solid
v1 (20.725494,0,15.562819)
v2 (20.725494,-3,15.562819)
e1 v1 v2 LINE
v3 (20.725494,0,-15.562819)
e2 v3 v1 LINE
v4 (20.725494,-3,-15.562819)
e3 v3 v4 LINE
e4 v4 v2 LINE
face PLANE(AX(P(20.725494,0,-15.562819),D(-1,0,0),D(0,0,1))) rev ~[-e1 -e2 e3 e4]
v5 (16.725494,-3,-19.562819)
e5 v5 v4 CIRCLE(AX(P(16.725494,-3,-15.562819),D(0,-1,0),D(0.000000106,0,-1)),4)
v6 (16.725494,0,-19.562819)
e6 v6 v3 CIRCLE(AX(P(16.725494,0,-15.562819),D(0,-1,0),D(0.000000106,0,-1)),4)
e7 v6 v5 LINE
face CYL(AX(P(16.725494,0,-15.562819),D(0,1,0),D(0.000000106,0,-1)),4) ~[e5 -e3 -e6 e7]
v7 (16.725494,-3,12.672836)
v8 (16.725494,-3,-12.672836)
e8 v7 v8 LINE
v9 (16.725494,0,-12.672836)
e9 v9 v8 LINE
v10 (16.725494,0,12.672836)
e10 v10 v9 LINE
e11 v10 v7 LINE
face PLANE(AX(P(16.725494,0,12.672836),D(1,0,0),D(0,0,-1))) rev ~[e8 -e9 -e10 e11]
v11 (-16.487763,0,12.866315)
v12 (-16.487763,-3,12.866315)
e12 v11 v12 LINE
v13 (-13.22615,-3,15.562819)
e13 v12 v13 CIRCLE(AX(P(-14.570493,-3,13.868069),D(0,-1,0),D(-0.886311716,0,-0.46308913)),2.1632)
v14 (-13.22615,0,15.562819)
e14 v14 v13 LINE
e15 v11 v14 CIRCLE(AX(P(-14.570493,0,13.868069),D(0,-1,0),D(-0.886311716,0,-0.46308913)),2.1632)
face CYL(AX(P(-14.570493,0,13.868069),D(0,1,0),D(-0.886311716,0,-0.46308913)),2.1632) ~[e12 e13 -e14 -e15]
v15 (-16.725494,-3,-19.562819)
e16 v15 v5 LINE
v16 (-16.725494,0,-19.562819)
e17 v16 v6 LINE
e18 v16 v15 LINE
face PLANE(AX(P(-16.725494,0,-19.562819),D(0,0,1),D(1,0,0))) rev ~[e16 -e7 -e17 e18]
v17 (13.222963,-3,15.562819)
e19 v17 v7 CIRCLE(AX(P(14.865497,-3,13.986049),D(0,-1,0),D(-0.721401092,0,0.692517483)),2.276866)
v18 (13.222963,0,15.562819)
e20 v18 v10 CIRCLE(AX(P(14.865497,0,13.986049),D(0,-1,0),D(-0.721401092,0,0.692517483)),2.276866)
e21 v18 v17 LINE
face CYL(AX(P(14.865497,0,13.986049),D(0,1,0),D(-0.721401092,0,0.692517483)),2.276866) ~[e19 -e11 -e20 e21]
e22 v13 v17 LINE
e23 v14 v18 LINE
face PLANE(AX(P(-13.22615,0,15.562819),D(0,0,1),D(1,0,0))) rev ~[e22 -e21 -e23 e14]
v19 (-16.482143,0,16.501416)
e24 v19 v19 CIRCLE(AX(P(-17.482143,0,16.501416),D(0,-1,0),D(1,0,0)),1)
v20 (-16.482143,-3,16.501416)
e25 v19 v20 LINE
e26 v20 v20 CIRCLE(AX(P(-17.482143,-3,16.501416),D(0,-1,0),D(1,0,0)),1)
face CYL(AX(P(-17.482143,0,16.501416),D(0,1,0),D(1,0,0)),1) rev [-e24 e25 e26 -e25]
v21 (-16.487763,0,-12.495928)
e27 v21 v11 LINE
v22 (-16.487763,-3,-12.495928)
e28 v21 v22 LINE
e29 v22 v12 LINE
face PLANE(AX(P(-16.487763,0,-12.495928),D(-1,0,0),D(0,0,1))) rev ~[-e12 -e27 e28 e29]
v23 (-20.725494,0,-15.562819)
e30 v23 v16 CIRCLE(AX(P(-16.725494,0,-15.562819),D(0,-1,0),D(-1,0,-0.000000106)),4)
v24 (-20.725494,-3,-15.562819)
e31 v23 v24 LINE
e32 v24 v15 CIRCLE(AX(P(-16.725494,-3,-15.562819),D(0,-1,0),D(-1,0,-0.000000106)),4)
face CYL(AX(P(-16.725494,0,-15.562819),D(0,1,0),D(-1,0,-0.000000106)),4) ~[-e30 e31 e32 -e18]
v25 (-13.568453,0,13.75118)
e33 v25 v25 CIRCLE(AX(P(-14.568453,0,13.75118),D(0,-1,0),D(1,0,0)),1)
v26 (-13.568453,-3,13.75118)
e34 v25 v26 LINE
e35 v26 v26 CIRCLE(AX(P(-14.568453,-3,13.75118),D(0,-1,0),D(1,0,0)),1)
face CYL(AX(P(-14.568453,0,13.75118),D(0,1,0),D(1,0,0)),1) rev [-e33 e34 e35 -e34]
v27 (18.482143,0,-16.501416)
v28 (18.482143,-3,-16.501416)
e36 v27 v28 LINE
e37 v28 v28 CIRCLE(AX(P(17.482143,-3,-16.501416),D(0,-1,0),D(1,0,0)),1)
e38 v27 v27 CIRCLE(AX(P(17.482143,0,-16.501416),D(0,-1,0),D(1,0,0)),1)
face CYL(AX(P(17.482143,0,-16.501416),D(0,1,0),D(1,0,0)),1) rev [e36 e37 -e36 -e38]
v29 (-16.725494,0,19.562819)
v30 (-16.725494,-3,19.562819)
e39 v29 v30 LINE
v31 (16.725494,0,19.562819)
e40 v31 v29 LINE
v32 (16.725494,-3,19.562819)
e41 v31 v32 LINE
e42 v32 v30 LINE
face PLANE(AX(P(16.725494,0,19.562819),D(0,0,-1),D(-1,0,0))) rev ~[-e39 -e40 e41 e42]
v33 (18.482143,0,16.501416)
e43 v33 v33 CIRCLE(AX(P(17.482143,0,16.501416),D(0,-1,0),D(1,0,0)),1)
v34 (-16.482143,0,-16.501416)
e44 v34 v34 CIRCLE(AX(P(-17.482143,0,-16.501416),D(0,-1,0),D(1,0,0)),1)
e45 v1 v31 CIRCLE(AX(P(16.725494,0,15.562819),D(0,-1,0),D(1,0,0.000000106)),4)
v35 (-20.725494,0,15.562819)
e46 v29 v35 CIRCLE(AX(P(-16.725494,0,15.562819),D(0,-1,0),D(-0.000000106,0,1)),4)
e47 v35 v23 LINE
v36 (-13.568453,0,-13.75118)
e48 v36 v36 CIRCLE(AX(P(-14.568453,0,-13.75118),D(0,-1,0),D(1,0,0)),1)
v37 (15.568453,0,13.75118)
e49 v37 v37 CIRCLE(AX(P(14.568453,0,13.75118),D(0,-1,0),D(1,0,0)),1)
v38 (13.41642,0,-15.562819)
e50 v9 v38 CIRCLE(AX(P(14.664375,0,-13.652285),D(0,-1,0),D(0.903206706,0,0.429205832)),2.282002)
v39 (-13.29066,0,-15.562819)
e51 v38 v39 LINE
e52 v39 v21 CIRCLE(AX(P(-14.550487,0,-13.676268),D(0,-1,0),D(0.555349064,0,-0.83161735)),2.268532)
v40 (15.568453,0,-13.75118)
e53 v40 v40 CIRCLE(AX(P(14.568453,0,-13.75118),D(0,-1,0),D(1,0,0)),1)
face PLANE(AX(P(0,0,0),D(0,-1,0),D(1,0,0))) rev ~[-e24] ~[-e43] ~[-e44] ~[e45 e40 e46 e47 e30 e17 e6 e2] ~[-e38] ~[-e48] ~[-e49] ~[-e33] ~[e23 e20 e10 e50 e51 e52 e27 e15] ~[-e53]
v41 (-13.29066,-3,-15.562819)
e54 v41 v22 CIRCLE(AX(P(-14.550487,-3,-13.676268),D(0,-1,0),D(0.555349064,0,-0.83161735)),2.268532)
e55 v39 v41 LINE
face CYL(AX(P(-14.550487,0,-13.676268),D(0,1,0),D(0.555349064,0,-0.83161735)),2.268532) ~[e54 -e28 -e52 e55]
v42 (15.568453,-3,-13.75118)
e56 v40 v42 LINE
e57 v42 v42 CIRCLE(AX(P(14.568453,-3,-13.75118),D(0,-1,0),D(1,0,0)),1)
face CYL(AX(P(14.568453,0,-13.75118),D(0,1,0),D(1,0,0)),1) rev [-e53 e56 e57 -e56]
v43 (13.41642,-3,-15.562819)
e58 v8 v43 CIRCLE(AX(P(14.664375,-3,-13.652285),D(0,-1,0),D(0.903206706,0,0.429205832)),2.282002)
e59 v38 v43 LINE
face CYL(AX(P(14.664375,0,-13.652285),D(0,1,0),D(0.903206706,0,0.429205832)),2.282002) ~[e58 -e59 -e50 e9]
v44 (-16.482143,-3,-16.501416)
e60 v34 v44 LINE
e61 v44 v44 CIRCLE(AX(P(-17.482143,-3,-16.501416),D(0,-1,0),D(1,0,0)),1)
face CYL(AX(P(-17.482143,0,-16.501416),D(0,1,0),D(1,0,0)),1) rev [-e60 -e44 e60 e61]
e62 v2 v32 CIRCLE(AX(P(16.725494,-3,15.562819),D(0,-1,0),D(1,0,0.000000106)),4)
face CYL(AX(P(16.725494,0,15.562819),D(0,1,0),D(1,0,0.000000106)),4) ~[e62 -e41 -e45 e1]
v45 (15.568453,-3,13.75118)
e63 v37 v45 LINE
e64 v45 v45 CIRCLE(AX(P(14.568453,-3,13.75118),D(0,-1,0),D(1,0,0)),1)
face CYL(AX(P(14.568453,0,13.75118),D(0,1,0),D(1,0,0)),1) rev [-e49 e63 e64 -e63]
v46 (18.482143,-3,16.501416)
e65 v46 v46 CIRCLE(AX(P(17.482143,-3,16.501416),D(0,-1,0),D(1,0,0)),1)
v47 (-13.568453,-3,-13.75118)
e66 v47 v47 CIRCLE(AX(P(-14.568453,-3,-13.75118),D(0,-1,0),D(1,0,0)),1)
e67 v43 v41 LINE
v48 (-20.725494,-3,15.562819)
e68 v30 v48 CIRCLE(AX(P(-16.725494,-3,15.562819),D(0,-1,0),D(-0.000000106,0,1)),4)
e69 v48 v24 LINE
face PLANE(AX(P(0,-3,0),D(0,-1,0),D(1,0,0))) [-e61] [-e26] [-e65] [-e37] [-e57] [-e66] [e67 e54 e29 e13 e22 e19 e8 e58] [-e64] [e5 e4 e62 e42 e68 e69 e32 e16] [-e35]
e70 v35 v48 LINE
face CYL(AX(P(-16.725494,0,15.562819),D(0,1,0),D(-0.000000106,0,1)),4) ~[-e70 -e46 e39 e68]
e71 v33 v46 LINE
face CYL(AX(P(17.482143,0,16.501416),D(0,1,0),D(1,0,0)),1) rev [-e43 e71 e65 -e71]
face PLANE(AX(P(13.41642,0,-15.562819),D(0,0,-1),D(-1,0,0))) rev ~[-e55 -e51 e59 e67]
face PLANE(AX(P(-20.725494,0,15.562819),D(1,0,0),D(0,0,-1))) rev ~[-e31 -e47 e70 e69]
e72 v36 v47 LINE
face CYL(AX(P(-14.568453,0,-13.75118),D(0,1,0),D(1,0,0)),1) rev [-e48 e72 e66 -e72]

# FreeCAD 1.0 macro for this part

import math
import FreeCAD as App
import Part
import Sketcher

V = App.Vector
Q = App.Units.Quantity

doc = App.newDocument("Part")
body = doc.addObject("PartDesign::Body", "Body")

sketch1 = body.newObject("Sketcher::SketchObject", "Sketch")
sketch1.AttachmentSupport = (doc.getObject("XZ_Plane"), [""])
sketch1.MapMode = "FlatFace"
sketch1.addGeometry(Part.LineSegment(V(16.725494, 19.562819, 0), V(-16.725494, 19.562819, 0)), False)
sketch1.addGeometry(Part.ArcOfCircle(Part.Circle(V(-16.725494, 15.562819, 0), V(0, 0, 1), 4), math.radians(90.000006), math.radians(179.999994)), False)
sketch1.addGeometry(Part.LineSegment(V(-20.725494, 15.562819, 0), V(-20.725494, -15.562819, 0)), False)
sketch1.addGeometry(Part.ArcOfCircle(Part.Circle(V(-16.725494, -15.562819, 0), V(0, 0, 1), 4), math.radians(-179.999994), math.radians(-90.000006)), False)
sketch1.addGeometry(Part.LineSegment(V(-16.725494, -19.562819, 0), V(16.725494, -19.562819, 0)), False)
sketch1.addGeometry(Part.ArcOfCircle(Part.Circle(V(16.725494, -15.562819, 0), V(0, 0, 1), 4), math.radians(-89.999994), math.radians(-0.000006)), False)
sketch1.addGeometry(Part.LineSegment(V(20.725494, -15.562819, 0), V(20.725494, 15.562819, 0)), False)
sketch1.addGeometry(Part.ArcOfCircle(Part.Circle(V(16.725494, 15.562819, 0), V(0, 0, 1), 4), math.radians(0.000006), math.radians(89.999994)), False)
sketch1.addGeometry(Part.Circle(V(-17.482143, -16.501416, 0), V(0, 0, 1), 1), False)
sketch1.addGeometry(Part.Circle(V(-14.568453, -13.75118, 0), V(0, 0, 1), 1), False)
sketch1.addGeometry(Part.Circle(V(17.482143, -16.501416, 0), V(0, 0, 1), 1), False)
sketch1.addGeometry(Part.Circle(V(14.568453, -13.75118, 0), V(0, 0, 1), 1), False)
sketch1.addGeometry(Part.Circle(V(-14.568453, 13.75118, 0), V(0, 0, 1), 1), False)
sketch1.addGeometry(Part.Circle(V(-17.482143, 16.501416, 0), V(0, 0, 1), 1), False)
sketch1.addGeometry(Part.LineSegment(V(-16.487763, -12.495928, 0), V(-16.487763, 12.866315, 0)), False)
sketch1.addGeometry(Part.ArcOfCircle(Part.Circle(V(-14.570493, 13.868069, 0), V(0, 0, 1), 2.1632), math.radians(-152.413376), math.radians(51.577137)), False)
sketch1.addGeometry(Part.LineSegment(V(-13.22615, 15.562819, 0), V(13.222963, 15.562819, 0)), False)
sketch1.addGeometry(Part.ArcOfCircle(Part.Circle(V(14.865497, 13.986049, 0), V(0, 0, 1), 2.276866), math.radians(136.170279), math.radians(324.776771)), False)
sketch1.addGeometry(Part.LineSegment(V(16.725494, 12.672836, 0), V(16.725494, -12.672836, 0)), False)
sketch1.addGeometry(Part.ArcOfCircle(Part.Circle(V(14.664375, -13.652285, 0), V(0, 0, 1), 2.282002), math.radians(25.417171), math.radians(236.847568)), False)
sketch1.addGeometry(Part.LineSegment(V(13.41642, -15.562819, 0), V(-13.29066, -15.562819, 0)), False)
sketch1.addGeometry(Part.ArcOfCircle(Part.Circle(V(-14.550487, -13.676268, 0), V(0, 0, 1), 2.268532), math.radians(-56.265239), math.radians(148.646954)), False)
sketch1.addGeometry(Part.Circle(V(14.568453, 13.75118, 0), V(0, 0, 1), 1), False)
sketch1.addGeometry(Part.Circle(V(17.482143, 16.501416, 0), V(0, 0, 1), 1), False)
sketch1.addConstraint(Sketcher.Constraint("Tangent", 0, 2, 1, 1))
sketch1.addConstraint(Sketcher.Constraint("Tangent", 1, 2, 2, 1))
sketch1.addConstraint(Sketcher.Constraint("Tangent", 2, 2, 3, 1))
sketch1.addConstraint(Sketcher.Constraint("Tangent", 3, 2, 4, 1))
sketch1.addConstraint(Sketcher.Constraint("Tangent", 4, 2, 5, 1))
sketch1.addConstraint(Sketcher.Constraint("Tangent", 5, 2, 6, 1))
sketch1.addConstraint(Sketcher.Constraint("Tangent", 6, 2, 7, 1))
sketch1.addConstraint(Sketcher.Constraint("Tangent", 7, 2, 0, 1))
sketch1.addConstraint(Sketcher.Constraint("Coincident", 14, 2, 15, 1))
sketch1.addConstraint(Sketcher.Constraint("Coincident", 15, 2, 16, 1))
sketch1.addConstraint(Sketcher.Constraint("Coincident", 16, 2, 17, 1))
sketch1.addConstraint(Sketcher.Constraint("Coincident", 17, 2, 18, 1))
sketch1.addConstraint(Sketcher.Constraint("Coincident", 18, 2, 19, 1))
sketch1.addConstraint(Sketcher.Constraint("Coincident", 19, 2, 20, 1))
sketch1.addConstraint(Sketcher.Constraint("Coincident", 20, 2, 21, 1))
sketch1.addConstraint(Sketcher.Constraint("Coincident", 21, 2, 14, 1))
sketch1.addConstraint(Sketcher.Constraint("Horizontal", 0))
sketch1.addConstraint(Sketcher.Constraint("Vertical", 2))
sketch1.addConstraint(Sketcher.Constraint("Horizontal", 4))
sketch1.addConstraint(Sketcher.Constraint("Vertical", 6))
sketch1.addConstraint(Sketcher.Constraint("Vertical", 14))
sketch1.addConstraint(Sketcher.Constraint("Horizontal", 16))
sketch1.addConstraint(Sketcher.Constraint("Vertical", 18))
sketch1.addConstraint(Sketcher.Constraint("Horizontal", 20))
sketch1.addConstraint(Sketcher.Constraint("Equal", 1, 3))
sketch1.addConstraint(Sketcher.Constraint("Equal", 3, 5))
sketch1.addConstraint(Sketcher.Constraint("Equal", 5, 7))
sketch1.addConstraint(Sketcher.Constraint("Equal", 8, 9))
sketch1.addConstraint(Sketcher.Constraint("Equal", 9, 10))
sketch1.addConstraint(Sketcher.Constraint("Equal", 10, 11))
sketch1.addConstraint(Sketcher.Constraint("Equal", 11, 12))
sketch1.addConstraint(Sketcher.Constraint("Equal", 12, 13))
sketch1.addConstraint(Sketcher.Constraint("Equal", 13, 22))
sketch1.addConstraint(Sketcher.Constraint("Equal", 22, 23))
sketch1.addConstraint(Sketcher.Constraint("Symmetric", 1, 3, 5, 3, -1, 1))
sketch1.addConstraint(Sketcher.Constraint("Symmetric", 11, 3, 12, 3, -1, 1))
sketch1.addConstraint(Sketcher.Constraint("Symmetric", 10, 3, 13, 3, -1, 1))
sketch1.addConstraint(Sketcher.Constraint("Symmetric", 9, 3, 22, 3, -1, 1))
sketch1.addConstraint(Sketcher.Constraint("Symmetric", 8, 3, 23, 3, -1, 1))
sketch1.addConstraint(Sketcher.Constraint("Symmetric", 8, 3, 10, 3, -2))
sketch1.addConstraint(Sketcher.Constraint("Symmetric", 9, 3, 11, 3, -2))
sketch1.addConstraint(Sketcher.Constraint("Horizontal", 6, 2, 15, 2))
sketch1.addConstraint(Sketcher.Constraint("Horizontal", 5, 2, 19, 2))
sketch1.addConstraint(Sketcher.Constraint("Vertical", 7, 2, 17, 2))
sketch1.addConstraint(Sketcher.Constraint("Diameter", 8, Q("2 mm")))
sketch1.addConstraint(Sketcher.Constraint("Radius", 1, Q("4 mm")))
sketch1.addConstraint(Sketcher.Constraint("Radius", 19, Q("2.282002 mm")))
sketch1.addConstraint(Sketcher.Constraint("Radius", 15, Q("2.1632 mm")))
sketch1.addConstraint(Sketcher.Constraint("Radius", 17, Q("2.276866 mm")))
sketch1.addConstraint(Sketcher.Constraint("Radius", 21, Q("2.268532 mm")))
sketch1.addConstraint(Sketcher.Constraint("DistanceY", 9, 3, 1, 3, Q("29.313999 mm")))
sketch1.addConstraint(Sketcher.Constraint("DistanceX", 1, 3, 15, 3, Q("2.155 mm")))
sketch1.addConstraint(Sketcher.Constraint("DistanceX", 0, 2, 0, 1, Q("33.450988 mm")))
sketch1.addConstraint(Sketcher.Constraint("DistanceX", 20, 2, 20, 1, Q("26.70708 mm")))
sketch1.addConstraint(Sketcher.Constraint("DistanceY", 19, 3, 23, 3, Q("30.153701 mm")))
sketch1.addConstraint(Sketcher.Constraint("DistanceY", 14, 2, 13, 3, Q("3.635101 mm")))
sketch1.addConstraint(Sketcher.Constraint("DistanceX", 16, 1, 16, 2, Q("26.449113 mm")))
sketch1.addConstraint(Sketcher.Constraint("DistanceY", 2, 2, 2, 1, Q("31.125638 mm")))
sketch1.addConstraint(Sketcher.Constraint("DistanceY", 14, 1, 14, 2, Q("25.362243 mm")))
sketch1.addConstraint(Sketcher.Constraint("DistanceY", 18, 2, 18, 1, Q("25.345672 mm")))
sketch1.addConstraint(Sketcher.Constraint("DistanceY", -1, 1, 15, 3, Q("13.868069 mm")))
sketch1.addConstraint(Sketcher.Constraint("DistanceY", -1, 1, 17, 3, Q("13.986049 mm")))
sketch1.addConstraint(Sketcher.Constraint("DistanceY", 21, 3, -1, 1, Q("13.676268 mm")))
sketch1.addConstraint(Sketcher.Constraint("DistanceX", 8, 3, 3, 3, Q("0.756649 mm")))
sketch1.addConstraint(Sketcher.Constraint("DistanceX", 3, 3, 9, 3, Q("2.157041 mm")))
pad1 = body.newObject("PartDesign::Pad", "Pad")
pad1.Profile = sketch1
pad1.Length = 3

doc.recompute()
